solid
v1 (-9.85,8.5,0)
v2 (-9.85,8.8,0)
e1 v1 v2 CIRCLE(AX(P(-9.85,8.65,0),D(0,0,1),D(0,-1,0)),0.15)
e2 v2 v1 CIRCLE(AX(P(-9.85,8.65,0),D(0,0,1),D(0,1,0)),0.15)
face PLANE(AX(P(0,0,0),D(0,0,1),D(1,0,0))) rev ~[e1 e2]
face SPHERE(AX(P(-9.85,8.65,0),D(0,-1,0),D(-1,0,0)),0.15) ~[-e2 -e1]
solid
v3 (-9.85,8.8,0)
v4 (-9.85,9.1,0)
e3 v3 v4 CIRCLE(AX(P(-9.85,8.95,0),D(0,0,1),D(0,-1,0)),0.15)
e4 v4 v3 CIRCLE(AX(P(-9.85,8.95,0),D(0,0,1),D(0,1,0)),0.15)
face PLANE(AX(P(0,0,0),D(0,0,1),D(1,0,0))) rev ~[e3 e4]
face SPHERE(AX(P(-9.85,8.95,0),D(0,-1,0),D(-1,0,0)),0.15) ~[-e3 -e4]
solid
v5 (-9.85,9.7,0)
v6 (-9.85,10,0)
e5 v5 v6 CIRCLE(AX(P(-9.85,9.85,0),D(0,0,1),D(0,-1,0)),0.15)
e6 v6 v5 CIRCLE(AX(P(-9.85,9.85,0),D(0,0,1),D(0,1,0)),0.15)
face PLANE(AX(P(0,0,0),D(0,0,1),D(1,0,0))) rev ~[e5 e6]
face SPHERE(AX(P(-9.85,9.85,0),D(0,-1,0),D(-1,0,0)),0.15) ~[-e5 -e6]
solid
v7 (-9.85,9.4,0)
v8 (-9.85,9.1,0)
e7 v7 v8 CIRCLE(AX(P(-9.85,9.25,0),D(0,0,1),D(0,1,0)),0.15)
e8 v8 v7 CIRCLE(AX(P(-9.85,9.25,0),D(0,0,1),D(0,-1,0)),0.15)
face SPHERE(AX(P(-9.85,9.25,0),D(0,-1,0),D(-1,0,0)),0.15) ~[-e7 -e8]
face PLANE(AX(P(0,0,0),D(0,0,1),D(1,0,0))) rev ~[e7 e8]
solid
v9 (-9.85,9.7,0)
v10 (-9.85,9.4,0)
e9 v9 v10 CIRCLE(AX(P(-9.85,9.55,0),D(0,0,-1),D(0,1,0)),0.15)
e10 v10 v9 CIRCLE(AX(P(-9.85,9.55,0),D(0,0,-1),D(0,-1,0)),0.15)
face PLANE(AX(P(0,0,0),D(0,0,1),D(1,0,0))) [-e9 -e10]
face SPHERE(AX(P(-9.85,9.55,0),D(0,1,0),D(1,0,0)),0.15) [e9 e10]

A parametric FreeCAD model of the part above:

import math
import FreeCAD as App
import Part
import Sketcher

V = App.Vector

doc = App.newDocument("Part")
body = doc.addObject("PartDesign::Body", "Body")
body.AllowCompound = True

# Sketch on XY plane
sketch1 = body.newObject("Sketcher::SketchObject", "Sketch")
sketch1.AttachmentSupport = (doc.getObject("XY_Plane"), [""])
sketch1.MapMode = "FlatFace"
sketch1.addGeometry(Part.ArcOfCircle(Part.Circle(V(-9.85, 9.85, 0), V(0, 0, 1), 0.15), math.radians(90), math.radians(270)), False)
sketch1.addGeometry(Part.LineSegment(V(-9.85, 9.7, 0), V(-9.85, 10, 0)), False)
sketch1.addGeometry(Part.ArcOfCircle(Part.Circle(V(-9.85, 9.55, 0), V(0, 0, 1), 0.15), math.radians(-90), math.radians(90)), False)
sketch1.addGeometry(Part.LineSegment(V(-9.85, 9.7, 0), V(-9.85, 9.4, 0)), False)
sketch1.addGeometry(Part.ArcOfCircle(Part.Circle(V(-9.85, 9.25, 0), V(0, 0, 1), 0.15), math.radians(90), math.radians(270)), False)
sketch1.addGeometry(Part.LineSegment(V(-9.85, 9.1, 0), V(-9.85, 9.4, 0)), False)
sketch1.addGeometry(Part.ArcOfCircle(Part.Circle(V(-9.85, 8.95, 0), V(0, 0, 1), 0.15), math.radians(90), math.radians(270)), False)
sketch1.addGeometry(Part.LineSegment(V(-9.85, 8.8, 0), V(-9.85, 9.1, 0)), False)
sketch1.addGeometry(Part.ArcOfCircle(Part.Circle(V(-9.85, 8.65, 0), V(0, 0, 1), 0.15), math.radians(90), math.radians(270)), False)
sketch1.addGeometry(Part.LineSegment(V(-9.85, 8.5, 0), V(-9.85, 8.8, 0)), False)
sketch1.addGeometry(Part.LineSegment(V(-9.85, 8.5, 0), V(-9.85, 10, 0)), True)  # axis
sketch1.addConstraint(Sketcher.Constraint("Coincident", 0, 1, 1, 2))
sketch1.addConstraint(Sketcher.Constraint("Coincident", 1, 1, 0, 2))
sketch1.addConstraint(Sketcher.Constraint("Coincident", 2, 1, 3, 2))
sketch1.addConstraint(Sketcher.Constraint("Coincident", 3, 1, 2, 2))
sketch1.addConstraint(Sketcher.Constraint("Coincident", 4, 1, 5, 2))
sketch1.addConstraint(Sketcher.Constraint("Coincident", 5, 1, 4, 2))
sketch1.addConstraint(Sketcher.Constraint("Coincident", 6, 1, 7, 2))
sketch1.addConstraint(Sketcher.Constraint("Coincident", 7, 1, 6, 2))
sketch1.addConstraint(Sketcher.Constraint("Coincident", 8, 1, 9, 2))
sketch1.addConstraint(Sketcher.Constraint("Coincident", 9, 1, 8, 2))
sketch1.addConstraint(Sketcher.Constraint("Vertical", 1))
sketch1.addConstraint(Sketcher.Constraint("Vertical", 3))
sketch1.addConstraint(Sketcher.Constraint("Vertical", 5))
sketch1.addConstraint(Sketcher.Constraint("Vertical", 7))
sketch1.addConstraint(Sketcher.Constraint("Vertical", 9))
sketch1.addConstraint(Sketcher.Constraint("Vertical", 10))
sketch1.addConstraint(Sketcher.Constraint("Coincident", 3, 1, 1, 1))
sketch1.addConstraint(Sketcher.Constraint("Coincident", 4, 1, 2, 1))
sketch1.addConstraint(Sketcher.Constraint("Coincident", 6, 1, 5, 1))
sketch1.addConstraint(Sketcher.Constraint("Coincident", 8, 1, 7, 1))
sketch1.addConstraint(Sketcher.Constraint("Coincident", 10, 1, 9, 1))
sketch1.addConstraint(Sketcher.Constraint("Equal", 0, 2))
sketch1.addConstraint(Sketcher.Constraint("Equal", 2, 4))
sketch1.addConstraint(Sketcher.Constraint("Equal", 4, 6))
sketch1.addConstraint(Sketcher.Constraint("Equal", 6, 8))
sketch1.addConstraint(Sketcher.Constraint("Vertical", 0, 3, 2, 3))
sketch1.addConstraint(Sketcher.Constraint("Vertical", 2, 3, 4, 3))
sketch1.addConstraint(Sketcher.Constraint("Vertical", 4, 3, 6, 3))
sketch1.addConstraint(Sketcher.Constraint("Vertical", 6, 3, 8, 3))
sketch1.addConstraint(Sketcher.Constraint("Vertical", 8, 3, 0, 1))
sketch1.addConstraint(Sketcher.Constraint("Radius", 0, 0.15))
sketch1.addConstraint(Sketcher.Constraint("DistanceY", 1, 1, 10, 2, 0.3))
sketch1.addConstraint(Sketcher.Constraint("DistanceY", -1, 1, 0, 1, 10.0))
sketch1.addConstraint(Sketcher.Constraint("DistanceX", 0, 3, -1, 1, 9.85))
revolution = body.newObject("PartDesign::Revolution", "Revolution")
revolution.Profile = sketch1
revolution.ReferenceAxis = (sketch1, ["Axis0"])
revolution.Angle = 180

doc.recompute()
